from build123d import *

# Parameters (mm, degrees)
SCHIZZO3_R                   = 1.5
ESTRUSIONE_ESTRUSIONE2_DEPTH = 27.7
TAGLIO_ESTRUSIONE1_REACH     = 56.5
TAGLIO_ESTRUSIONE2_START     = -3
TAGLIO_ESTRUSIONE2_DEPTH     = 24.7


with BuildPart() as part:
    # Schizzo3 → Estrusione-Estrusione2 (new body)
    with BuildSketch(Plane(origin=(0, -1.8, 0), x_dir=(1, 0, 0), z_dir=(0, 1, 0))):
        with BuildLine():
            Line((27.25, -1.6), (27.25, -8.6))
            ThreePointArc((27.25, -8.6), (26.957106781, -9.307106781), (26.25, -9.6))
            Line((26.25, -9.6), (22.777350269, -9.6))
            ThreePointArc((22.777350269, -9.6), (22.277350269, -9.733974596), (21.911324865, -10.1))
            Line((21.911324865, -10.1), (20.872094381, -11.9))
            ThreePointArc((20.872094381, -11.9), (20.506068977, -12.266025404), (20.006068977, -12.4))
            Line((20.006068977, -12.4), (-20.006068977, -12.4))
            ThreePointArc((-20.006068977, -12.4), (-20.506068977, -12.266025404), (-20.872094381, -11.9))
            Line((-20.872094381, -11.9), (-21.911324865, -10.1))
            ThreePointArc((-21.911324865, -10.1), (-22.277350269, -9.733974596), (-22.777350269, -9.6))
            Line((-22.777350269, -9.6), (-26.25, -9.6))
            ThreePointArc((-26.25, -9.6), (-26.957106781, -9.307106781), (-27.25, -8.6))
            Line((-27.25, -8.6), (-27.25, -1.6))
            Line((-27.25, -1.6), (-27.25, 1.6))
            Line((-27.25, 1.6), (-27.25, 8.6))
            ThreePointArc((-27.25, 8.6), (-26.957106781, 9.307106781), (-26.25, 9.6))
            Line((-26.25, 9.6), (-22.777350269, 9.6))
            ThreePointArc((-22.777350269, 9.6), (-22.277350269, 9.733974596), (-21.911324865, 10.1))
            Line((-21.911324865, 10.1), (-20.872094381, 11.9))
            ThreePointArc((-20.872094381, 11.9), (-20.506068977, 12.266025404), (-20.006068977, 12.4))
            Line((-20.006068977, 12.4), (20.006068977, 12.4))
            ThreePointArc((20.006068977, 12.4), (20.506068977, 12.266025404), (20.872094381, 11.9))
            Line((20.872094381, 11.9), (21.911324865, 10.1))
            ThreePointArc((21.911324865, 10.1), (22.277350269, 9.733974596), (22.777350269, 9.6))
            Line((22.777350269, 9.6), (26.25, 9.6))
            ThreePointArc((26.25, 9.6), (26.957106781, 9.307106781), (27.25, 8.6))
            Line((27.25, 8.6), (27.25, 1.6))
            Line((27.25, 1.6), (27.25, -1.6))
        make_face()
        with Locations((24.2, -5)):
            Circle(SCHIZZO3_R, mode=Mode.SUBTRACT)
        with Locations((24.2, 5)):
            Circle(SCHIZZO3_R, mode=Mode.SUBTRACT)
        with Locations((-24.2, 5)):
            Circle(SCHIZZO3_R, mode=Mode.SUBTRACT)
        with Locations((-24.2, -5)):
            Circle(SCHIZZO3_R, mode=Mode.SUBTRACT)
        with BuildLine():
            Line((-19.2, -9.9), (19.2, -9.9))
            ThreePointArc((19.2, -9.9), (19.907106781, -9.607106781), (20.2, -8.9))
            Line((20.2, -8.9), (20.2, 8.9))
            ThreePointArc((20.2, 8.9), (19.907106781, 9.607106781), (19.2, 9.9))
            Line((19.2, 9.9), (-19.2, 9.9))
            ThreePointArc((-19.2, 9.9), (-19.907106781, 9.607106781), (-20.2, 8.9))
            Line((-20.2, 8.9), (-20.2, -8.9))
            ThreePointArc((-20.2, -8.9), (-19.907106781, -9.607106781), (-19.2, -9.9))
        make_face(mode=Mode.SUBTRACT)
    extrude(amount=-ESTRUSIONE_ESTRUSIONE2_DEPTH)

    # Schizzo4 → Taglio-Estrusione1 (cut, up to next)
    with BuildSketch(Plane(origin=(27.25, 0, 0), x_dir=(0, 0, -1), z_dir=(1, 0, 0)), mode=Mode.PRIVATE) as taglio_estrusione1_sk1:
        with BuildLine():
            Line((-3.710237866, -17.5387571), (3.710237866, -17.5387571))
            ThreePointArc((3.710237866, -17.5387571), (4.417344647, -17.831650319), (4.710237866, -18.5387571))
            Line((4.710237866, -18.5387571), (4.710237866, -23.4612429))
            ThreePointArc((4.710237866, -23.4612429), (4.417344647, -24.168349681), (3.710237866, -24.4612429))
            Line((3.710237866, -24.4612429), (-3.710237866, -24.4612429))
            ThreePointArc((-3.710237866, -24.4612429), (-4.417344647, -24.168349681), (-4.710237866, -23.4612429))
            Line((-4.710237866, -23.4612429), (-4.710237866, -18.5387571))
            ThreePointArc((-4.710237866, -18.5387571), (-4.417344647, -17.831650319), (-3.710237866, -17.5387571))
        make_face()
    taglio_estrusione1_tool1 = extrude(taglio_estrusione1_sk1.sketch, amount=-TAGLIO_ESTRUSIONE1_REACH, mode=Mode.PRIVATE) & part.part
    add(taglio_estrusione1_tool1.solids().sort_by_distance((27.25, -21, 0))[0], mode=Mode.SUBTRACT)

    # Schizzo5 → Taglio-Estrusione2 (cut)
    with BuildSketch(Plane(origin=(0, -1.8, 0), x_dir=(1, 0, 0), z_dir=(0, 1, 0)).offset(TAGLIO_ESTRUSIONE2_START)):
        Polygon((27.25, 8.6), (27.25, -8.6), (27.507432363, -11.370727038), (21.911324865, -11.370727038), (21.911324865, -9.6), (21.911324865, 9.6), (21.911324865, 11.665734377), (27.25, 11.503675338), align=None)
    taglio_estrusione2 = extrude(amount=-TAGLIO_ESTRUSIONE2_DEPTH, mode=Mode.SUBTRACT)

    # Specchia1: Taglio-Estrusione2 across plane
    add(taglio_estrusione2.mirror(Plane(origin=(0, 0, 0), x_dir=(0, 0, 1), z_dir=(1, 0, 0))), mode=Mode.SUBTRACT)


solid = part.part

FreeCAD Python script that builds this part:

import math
import FreeCAD as App
import Part
import Sketcher

V = App.Vector
Q = App.Units.Quantity

doc = App.newDocument("Part")
params = doc.addObject("Spreadsheet::Sheet", "Params")
for row, (alias, value) in enumerate([
    ("sketch1_diameter", "3 mm"),
    ("sketch1_radius", "1 mm"),
    ("sketch1_width", "38.4 mm"),
    ("sketch1_height", "17.2 mm"),
    ("sketch1_height2", "17.8 mm"),
    ("pad1_length", "27.7 mm"),
    ("sketch2_radius", "1 mm"),
    ("pocket2_length", "24.7 mm"),
], start=1):
    params.set(f"A{row}", alias)
    params.set(f"B{row}", "=" + value)
    params.setAlias(f"B{row}", alias)

body = doc.addObject("PartDesign::Body", "Body")

# Sketch on XZ plane
sketch1 = body.newObject("Sketcher::SketchObject", "Sketch")
sketch1.AttachmentSupport = (doc.getObject("XZ_Plane"), [""])
sketch1.MapMode = "FlatFace"
sketch1.AttachmentOffset = App.Placement(V(0, 0, 1.8), App.Rotation())
sketch1.addGeometry(Part.ArcOfCircle(Part.Circle(V(26.25, 8.6, 0), V(0, 0, 1), 1), math.radians(0), math.radians(90)), False)
sketch1.addGeometry(Part.LineSegment(V(27.25, 8.6, 0), V(27.25, -8.6, 0)), False)
sketch1.addGeometry(Part.ArcOfCircle(Part.Circle(V(26.25, -8.6, 0), V(0, 0, 1), 1), math.radians(-90), math.radians(0)), False)
sketch1.addGeometry(Part.LineSegment(V(26.25, -9.6, 0), V(22.77735, -9.6, 0)), False)
sketch1.addGeometry(Part.ArcOfCircle(Part.Circle(V(22.77735, -10.6, 0), V(0, 0, 1), 1), math.radians(90), math.radians(150)), False)
sketch1.addGeometry(Part.LineSegment(V(21.911325, -10.1, 0), V(20.872094, -11.9, 0)), False)
sketch1.addGeometry(Part.ArcOfCircle(Part.Circle(V(20.006069, -11.4, 0), V(0, 0, 1), 1), math.radians(-90), math.radians(-30)), False)
sketch1.addGeometry(Part.LineSegment(V(20.006069, -12.4, 0), V(-20.006069, -12.4, 0)), False)
sketch1.addGeometry(Part.ArcOfCircle(Part.Circle(V(-20.006069, -11.4, 0), V(0, 0, 1), 1), math.radians(-150), math.radians(-90)), False)
sketch1.addGeometry(Part.LineSegment(V(-20.872094, -11.9, 0), V(-21.911325, -10.1, 0)), False)
sketch1.addGeometry(Part.ArcOfCircle(Part.Circle(V(-22.77735, -10.6, 0), V(0, 0, 1), 1), math.radians(30), math.radians(90)), False)
sketch1.addGeometry(Part.LineSegment(V(-22.77735, -9.6, 0), V(-26.25, -9.6, 0)), False)
sketch1.addGeometry(Part.ArcOfCircle(Part.Circle(V(-26.25, -8.6, 0), V(0, 0, 1), 1), math.radians(-180), math.radians(-90)), False)
sketch1.addGeometry(Part.LineSegment(V(-27.25, -8.6, 0), V(-27.25, 8.6, 0)), False)
sketch1.addGeometry(Part.ArcOfCircle(Part.Circle(V(-26.25, 8.6, 0), V(0, 0, 1), 1), math.radians(90), math.radians(180)), False)
sketch1.addGeometry(Part.LineSegment(V(-26.25, 9.6, 0), V(-22.77735, 9.6, 0)), False)
sketch1.addGeometry(Part.ArcOfCircle(Part.Circle(V(-22.77735, 10.6, 0), V(0, 0, 1), 1), math.radians(-90), math.radians(-30)), False)
sketch1.addGeometry(Part.LineSegment(V(-21.911325, 10.1, 0), V(-20.872094, 11.9, 0)), False)
sketch1.addGeometry(Part.ArcOfCircle(Part.Circle(V(-20.006069, 11.4, 0), V(0, 0, 1), 1), math.radians(90), math.radians(150)), False)
sketch1.addGeometry(Part.LineSegment(V(-20.006069, 12.4, 0), V(20.006069, 12.4, 0)), False)
sketch1.addGeometry(Part.ArcOfCircle(Part.Circle(V(20.006069, 11.4, 0), V(0, 0, 1), 1), math.radians(30), math.radians(90)), False)
sketch1.addGeometry(Part.LineSegment(V(20.872094, 11.9, 0), V(21.911325, 10.1, 0)), False)
sketch1.addGeometry(Part.ArcOfCircle(Part.Circle(V(22.77735, 10.6, 0), V(0, 0, 1), 1), math.radians(-150), math.radians(-90)), False)
sketch1.addGeometry(Part.LineSegment(V(22.77735, 9.6, 0), V(26.25, 9.6, 0)), False)
sketch1.addGeometry(Part.Circle(V(24.2, 5, 0), V(0, 0, 1), 1.5), False)
sketch1.addGeometry(Part.Circle(V(-24.2, 5, 0), V(0, 0, 1), 1.5), False)
sketch1.addGeometry(Part.Circle(V(24.2, -5, 0), V(0, 0, 1), 1.5), False)
sketch1.addGeometry(Part.ArcOfCircle(Part.Circle(V(-19.2, 8.9, 0), V(0, 0, 1), 1), math.radians(90), math.radians(180)), False)
sketch1.addGeometry(Part.LineSegment(V(-20.2, 8.9, 0), V(-20.2, -8.9, 0)), False)
sketch1.addGeometry(Part.ArcOfCircle(Part.Circle(V(-19.2, -8.9, 0), V(0, 0, 1), 1), math.radians(-180), math.radians(-90)), False)
sketch1.addGeometry(Part.LineSegment(V(-19.2, -9.9, 0), V(19.2, -9.9, 0)), False)
sketch1.addGeometry(Part.ArcOfCircle(Part.Circle(V(19.2, -8.9, 0), V(0, 0, 1), 1), math.radians(-90), math.radians(0)), False)
sketch1.addGeometry(Part.LineSegment(V(20.2, -8.9, 0), V(20.2, 8.9, 0)), False)
sketch1.addGeometry(Part.ArcOfCircle(Part.Circle(V(19.2, 8.9, 0), V(0, 0, 1), 1), math.radians(0), math.radians(90)), False)
sketch1.addGeometry(Part.LineSegment(V(19.2, 9.9, 0), V(-19.2, 9.9, 0)), False)
sketch1.addGeometry(Part.Circle(V(-24.2, -5, 0), V(0, 0, 1), 1.5), False)
sketch1.addConstraint(Sketcher.Constraint("Tangent", 0, 1, 1, 1))
sketch1.addConstraint(Sketcher.Constraint("Tangent", 1, 2, 2, 2))
sketch1.addConstraint(Sketcher.Constraint("Tangent", 2, 1, 3, 1))
sketch1.addConstraint(Sketcher.Constraint("Tangent", 3, 2, 4, 1))
sketch1.addConstraint(Sketcher.Constraint("Tangent", 4, 2, 5, 1))
sketch1.addConstraint(Sketcher.Constraint("Tangent", 5, 2, 6, 2))
sketch1.addConstraint(Sketcher.Constraint("Tangent", 6, 1, 7, 1))
sketch1.addConstraint(Sketcher.Constraint("Tangent", 7, 2, 8, 2))
sketch1.addConstraint(Sketcher.Constraint("Tangent", 8, 1, 9, 1))
sketch1.addConstraint(Sketcher.Constraint("Tangent", 9, 2, 10, 1))
sketch1.addConstraint(Sketcher.Constraint("Tangent", 10, 2, 11, 1))
sketch1.addConstraint(Sketcher.Constraint("Tangent", 11, 2, 12, 2))
sketch1.addConstraint(Sketcher.Constraint("Tangent", 12, 1, 13, 1))
sketch1.addConstraint(Sketcher.Constraint("Tangent", 13, 2, 14, 2))
sketch1.addConstraint(Sketcher.Constraint("Tangent", 14, 1, 15, 1))
sketch1.addConstraint(Sketcher.Constraint("Tangent", 15, 2, 16, 1))
sketch1.addConstraint(Sketcher.Constraint("Tangent", 16, 2, 17, 1))
sketch1.addConstraint(Sketcher.Constraint("Tangent", 17, 2, 18, 2))
sketch1.addConstraint(Sketcher.Constraint("Tangent", 18, 1, 19, 1))
sketch1.addConstraint(Sketcher.Constraint("Tangent", 19, 2, 20, 2))
sketch1.addConstraint(Sketcher.Constraint("Tangent", 20, 1, 21, 1))
sketch1.addConstraint(Sketcher.Constraint("Tangent", 21, 2, 22, 1))
sketch1.addConstraint(Sketcher.Constraint("Tangent", 22, 2, 23, 1))
sketch1.addConstraint(Sketcher.Constraint("Tangent", 23, 2, 0, 2))
sketch1.addConstraint(Sketcher.Constraint("Tangent", 27, 2, 28, 1))
sketch1.addConstraint(Sketcher.Constraint("Tangent", 28, 2, 29, 1))
sketch1.addConstraint(Sketcher.Constraint("Tangent", 29, 2, 30, 1))
sketch1.addConstraint(Sketcher.Constraint("Tangent", 30, 2, 31, 1))
sketch1.addConstraint(Sketcher.Constraint("Tangent", 31, 2, 32, 1))
sketch1.addConstraint(Sketcher.Constraint("Tangent", 32, 2, 33, 1))
sketch1.addConstraint(Sketcher.Constraint("Tangent", 33, 2, 34, 1))
sketch1.addConstraint(Sketcher.Constraint("Tangent", 34, 2, 27, 1))
sketch1.addConstraint(Sketcher.Constraint("Vertical", 1))
sketch1.addConstraint(Sketcher.Constraint("Horizontal", 3))
sketch1.addConstraint(Sketcher.Constraint("Horizontal", 7))
sketch1.addConstraint(Sketcher.Constraint("Horizontal", 11))
sketch1.addConstraint(Sketcher.Constraint("Vertical", 13))
sketch1.addConstraint(Sketcher.Constraint("Horizontal", 15))
sketch1.addConstraint(Sketcher.Constraint("Horizontal", 19))
sketch1.addConstraint(Sketcher.Constraint("Horizontal", 23))
sketch1.addConstraint(Sketcher.Constraint("Vertical", 28))
sketch1.addConstraint(Sketcher.Constraint("Horizontal", 30))
sketch1.addConstraint(Sketcher.Constraint("Vertical", 32))
sketch1.addConstraint(Sketcher.Constraint("Horizontal", 34))
sketch1.addConstraint(Sketcher.Constraint("Equal", 0, 2))
sketch1.addConstraint(Sketcher.Constraint("Equal", 2, 4))
sketch1.addConstraint(Sketcher.Constraint("Equal", 4, 6))
sketch1.addConstraint(Sketcher.Constraint("Equal", 6, 8))
sketch1.addConstraint(Sketcher.Constraint("Equal", 8, 10))
sketch1.addConstraint(Sketcher.Constraint("Equal", 10, 12))
sketch1.addConstraint(Sketcher.Constraint("Equal", 12, 14))
sketch1.addConstraint(Sketcher.Constraint("Equal", 14, 16))
sketch1.addConstraint(Sketcher.Constraint("Equal", 16, 18))
sketch1.addConstraint(Sketcher.Constraint("Equal", 18, 20))
sketch1.addConstraint(Sketcher.Constraint("Equal", 20, 22))
sketch1.addConstraint(Sketcher.Constraint("Equal", 24, 25))
sketch1.addConstraint(Sketcher.Constraint("Equal", 25, 26))
sketch1.addConstraint(Sketcher.Constraint("Equal", 22, 27))
sketch1.addConstraint(Sketcher.Constraint("Equal", 27, 29))
sketch1.addConstraint(Sketcher.Constraint("Equal", 29, 31))
sketch1.addConstraint(Sketcher.Constraint("Equal", 31, 33))
sketch1.addConstraint(Sketcher.Constraint("Equal", 26, 35))
sketch1.addConstraint(Sketcher.Constraint("Symmetric", 0, 3, 12, 3, -1, 1))
sketch1.addConstraint(Sketcher.Constraint("Symmetric", 4, 3, 16, 3, -1, 1))
sketch1.addConstraint(Sketcher.Constraint("Symmetric", 6, 3, 18, 3, -1, 1))
sketch1.addConstraint(Sketcher.Constraint("Symmetric", 25, 3, 26, 3, -1, 1))
sketch1.addConstraint(Sketcher.Constraint("Symmetric", 27, 3, 31, 3, -1, 1))
sketch1.addConstraint(Sketcher.Constraint("Symmetric", 24, 3, 35, 3, -1, 1))
sketch1.addConstraint(Sketcher.Constraint("Symmetric", 8, 1, 20, 1, -1, 1))
sketch1.addConstraint(Sketcher.Constraint("Symmetric", 4, 3, 10, 3, -2))
sketch1.addConstraint(Sketcher.Constraint("Symmetric", 24, 3, 25, 3, -2))
sketch1.addConstraint(Sketcher.Constraint("Horizontal", 5, 2, 8, 1))
sketch1.addConstraint(Sketcher.Constraint("Diameter", 24, Q("3 mm")))
sketch1.addConstraint(Sketcher.Constraint("Radius", 0, Q("1 mm")))
sketch1.addConstraint(Sketcher.Constraint("Angle", 5, Q("-120 deg")))
sketch1.addConstraint(Sketcher.Constraint("DistanceX", 30, 1, 30, 2, Q("38.4 mm")))
sketch1.addConstraint(Sketcher.Constraint("DistanceY", 1, 2, 1, 1, Q("17.2 mm")))
sketch1.addConstraint(Sketcher.Constraint("DistanceY", 28, 2, 28, 1, Q("17.8 mm")))
sketch1.addConstraint(Sketcher.Constraint("DistanceY", -1, 1, 24, 3, Q("5 mm")))
sketch1.addConstraint(Sketcher.Constraint("DistanceY", 6, 3, 0, 3, Q("20 mm")))
sketch1.addConstraint(Sketcher.Constraint("DistanceX", 25, 3, 27, 3, Q("5 mm")))
sketch1.addConstraint(Sketcher.Constraint("DistanceX", 12, 3, 2, 3, Q("52.5 mm")))
sketch1.addConstraint(Sketcher.Constraint("DistanceX", 3, 2, 3, 1, Q("3.47265 mm")))
sketch1.setExpression("Constraints[72]", "Params.sketch1_diameter")
sketch1.setExpression("Constraints[73]", "Params.sketch1_radius")
sketch1.setExpression("Constraints[75]", "Params.sketch1_width")
sketch1.setExpression("Constraints[76]", "Params.sketch1_height")
sketch1.setExpression("Constraints[77]", "Params.sketch1_height2")
pad1 = body.newObject("PartDesign::Pad", "Pad")
pad1.Profile = sketch1
pad1.setExpression("Length", "Params.pad1_length")

# Sketch on YZ plane
sketch2 = body.newObject("Sketcher::SketchObject", "Sketch001")
sketch2.AttachmentSupport = (doc.getObject("YZ_Plane"), [""])
sketch2.MapMode = "FlatFace"
sketch2.AttachmentOffset = App.Placement(V(0, 0, 27.25), App.Rotation())
sketch2.addGeometry(Part.LineSegment(V(-17.538757, -3.710238, 0), V(-17.538757, 3.710238, 0)), False)
sketch2.addGeometry(Part.ArcOfCircle(Part.Circle(V(-18.538757, 3.710238, 0), V(0, 0, 1), 1), math.radians(0), math.radians(90)), False)
sketch2.addGeometry(Part.LineSegment(V(-18.538757, 4.710238, 0), V(-23.461243, 4.710238, 0)), False)
sketch2.addGeometry(Part.ArcOfCircle(Part.Circle(V(-23.461243, 3.710238, 0), V(0, 0, 1), 1), math.radians(90), math.radians(180)), False)
sketch2.addGeometry(Part.LineSegment(V(-24.461243, 3.710238, 0), V(-24.461243, -3.710238, 0)), False)
sketch2.addGeometry(Part.ArcOfCircle(Part.Circle(V(-23.461243, -3.710238, 0), V(0, 0, 1), 1), math.radians(-180), math.radians(-90)), False)
sketch2.addGeometry(Part.LineSegment(V(-23.461243, -4.710238, 0), V(-18.538757, -4.710238, 0)), False)
sketch2.addGeometry(Part.ArcOfCircle(Part.Circle(V(-18.538757, -3.710238, 0), V(0, 0, 1), 1), math.radians(-90), math.radians(0)), False)
sketch2.addConstraint(Sketcher.Constraint("Tangent", 0, 2, 1, 1))
sketch2.addConstraint(Sketcher.Constraint("Tangent", 1, 2, 2, 1))
sketch2.addConstraint(Sketcher.Constraint("Tangent", 2, 2, 3, 1))
sketch2.addConstraint(Sketcher.Constraint("Tangent", 3, 2, 4, 1))
sketch2.addConstraint(Sketcher.Constraint("Tangent", 4, 2, 5, 1))
sketch2.addConstraint(Sketcher.Constraint("Tangent", 5, 2, 6, 1))
sketch2.addConstraint(Sketcher.Constraint("Tangent", 6, 2, 7, 1))
sketch2.addConstraint(Sketcher.Constraint("Tangent", 7, 2, 0, 1))
sketch2.addConstraint(Sketcher.Constraint("Vertical", 0))
sketch2.addConstraint(Sketcher.Constraint("Horizontal", 2))
sketch2.addConstraint(Sketcher.Constraint("Vertical", 4))
sketch2.addConstraint(Sketcher.Constraint("Horizontal", 6))
sketch2.addConstraint(Sketcher.Constraint("Equal", 1, 3))
sketch2.addConstraint(Sketcher.Constraint("Equal", 3, 5))
sketch2.addConstraint(Sketcher.Constraint("Equal", 5, 7))
sketch2.addConstraint(Sketcher.Constraint("Radius", 1, Q("1 mm")))
sketch2.addConstraint(Sketcher.Constraint("DistanceX", 2, 2, 2, 1, Q("4.922486 mm")))
sketch2.addConstraint(Sketcher.Constraint("DistanceY", 0, 1, 0, 2, Q("7.420476 mm")))
sketch2.addConstraint(Sketcher.Constraint("DistanceX", 1, 3, -1, 1, Q("18.538757 mm")))
sketch2.addConstraint(Sketcher.Constraint("DistanceY", -1, 1, 1, 3, Q("3.710238 mm")))
sketch2.setExpression("Constraints[15]", "Params.sketch2_radius")
pocket1 = body.newObject("PartDesign::Pocket", "Pocket")
pocket1.Profile = sketch2
pocket1.Type = "UpToFirst"

# Sketch on XZ plane
sketch3 = body.newObject("Sketcher::SketchObject", "Sketch002")
sketch3.AttachmentSupport = (doc.getObject("XZ_Plane"), [""])
sketch3.MapMode = "FlatFace"
sketch3.AttachmentOffset = App.Placement(V(0, 0, 4.8), App.Rotation())
sketch3.addGeometry(Part.LineSegment(V(27.25, 8.6, 0), V(27.25, -11.503675, 0)), False)
sketch3.addGeometry(Part.LineSegment(V(27.25, -11.503675, 0), V(21.911325, -11.665734, 0)), False)
sketch3.addGeometry(Part.LineSegment(V(21.911325, -11.665734, 0), V(21.911325, 11.370727, 0)), False)
sketch3.addGeometry(Part.LineSegment(V(21.911325, 11.370727, 0), V(27.507432, 11.370727, 0)), False)
sketch3.addGeometry(Part.LineSegment(V(27.507432, 11.370727, 0), V(27.25, 8.6, 0)), False)
sketch3.addConstraint(Sketcher.Constraint("Coincident", 0, 2, 1, 1))
sketch3.addConstraint(Sketcher.Constraint("Coincident", 1, 2, 2, 1))
sketch3.addConstraint(Sketcher.Constraint("Coincident", 2, 2, 3, 1))
sketch3.addConstraint(Sketcher.Constraint("Coincident", 3, 2, 4, 1))
sketch3.addConstraint(Sketcher.Constraint("Coincident", 4, 2, 0, 1))
sketch3.addConstraint(Sketcher.Constraint("Vertical", 0))
sketch3.addConstraint(Sketcher.Constraint("Vertical", 2))
sketch3.addConstraint(Sketcher.Constraint("Horizontal", 3))
sketch3.addConstraint(Sketcher.Constraint("DistanceY", -1, 1, 4, 2, Q("8.6 mm")))
sketch3.addConstraint(Sketcher.Constraint("DistanceX", -1, 1, 0, 2, Q("27.25 mm")))
sketch3.addConstraint(Sketcher.Constraint("DistanceY", 2, 1, 2, 2, Q("23.036461 mm")))
sketch3.addConstraint(Sketcher.Constraint("Distance", 4, Q("2.782661 mm")))
sketch3.addConstraint(Sketcher.Constraint("DistanceX", 3, 1, 3, 2, Q("5.596107 mm")))
sketch3.addConstraint(Sketcher.Constraint("DistanceY", 0, 2, 0, 1, Q("20.103675 mm")))
sketch3.addConstraint(Sketcher.Constraint("DistanceY", 1, 2, 0, 2, Q("0.162059 mm")))
pocket2 = body.newObject("PartDesign::Pocket", "Pocket001")
pocket2.Profile = sketch3
pocket2.setExpression("Length", "Params.pocket2_length")
pocket2.Reversed = True
doc.recompute()

mirrored = body.newObject("PartDesign::Mirrored", "Mirrored")
mirrored.Originals = [pocket2]
mirrored.MirrorPlane = (doc.getObject("YZ_Plane"), [""])
body.Tip = mirrored

doc.recompute()
